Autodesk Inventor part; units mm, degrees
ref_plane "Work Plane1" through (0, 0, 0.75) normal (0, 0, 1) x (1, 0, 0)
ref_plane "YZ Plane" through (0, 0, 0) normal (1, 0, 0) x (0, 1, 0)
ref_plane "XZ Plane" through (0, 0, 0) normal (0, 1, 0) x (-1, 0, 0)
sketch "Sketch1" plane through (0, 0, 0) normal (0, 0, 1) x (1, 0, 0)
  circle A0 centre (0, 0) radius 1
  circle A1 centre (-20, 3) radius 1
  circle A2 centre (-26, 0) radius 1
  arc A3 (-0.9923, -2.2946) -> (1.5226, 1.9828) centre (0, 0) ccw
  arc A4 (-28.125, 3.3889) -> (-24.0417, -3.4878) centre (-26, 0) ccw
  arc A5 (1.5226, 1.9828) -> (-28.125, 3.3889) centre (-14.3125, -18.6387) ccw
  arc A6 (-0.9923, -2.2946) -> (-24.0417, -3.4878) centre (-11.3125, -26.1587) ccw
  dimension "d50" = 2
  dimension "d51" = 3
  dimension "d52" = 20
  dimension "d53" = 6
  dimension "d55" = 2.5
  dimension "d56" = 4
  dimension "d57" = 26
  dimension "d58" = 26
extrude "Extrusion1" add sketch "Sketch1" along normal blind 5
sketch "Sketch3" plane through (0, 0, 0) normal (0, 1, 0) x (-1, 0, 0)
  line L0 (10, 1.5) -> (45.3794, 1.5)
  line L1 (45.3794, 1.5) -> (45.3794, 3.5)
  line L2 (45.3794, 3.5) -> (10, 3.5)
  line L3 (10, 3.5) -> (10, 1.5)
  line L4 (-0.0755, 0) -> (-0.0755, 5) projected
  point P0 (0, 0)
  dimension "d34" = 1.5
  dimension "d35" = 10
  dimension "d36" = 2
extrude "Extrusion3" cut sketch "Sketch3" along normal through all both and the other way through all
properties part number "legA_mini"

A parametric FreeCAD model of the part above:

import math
import FreeCAD as App
import Part
import Sketcher
Q = App.Units.Quantity

doc = App.newDocument("Part")
body = doc.addObject("PartDesign::Body", "Body")

sketch1 = doc.addObject("Sketcher::SketchObject", "Sketch")
body.addObject(sketch1)
sketch1.AttachmentSupport = (doc.XY_Plane, [""])
sketch1.MapMode = "FlatFace"
sketch1.addGeometry([
    Part.ArcOfCircle(Part.Circle(App.Vector(-11.3, -26.2, 0), App.Vector(0, 0, 1), 26), math.radians(67), math.radians(119)),
    Part.ArcOfCircle(Part.Circle(App.Vector(0, 0, 0), App.Vector(0, 0, 1), 2.5), math.radians(-113), math.radians(52)),
    Part.ArcOfCircle(Part.Circle(App.Vector(-14.3, -18.6, 0), App.Vector(0, 0, 1), 26), math.radians(52), math.radians(122)),
    Part.ArcOfCircle(Part.Circle(App.Vector(-26, 0, 0), App.Vector(0, 0, 1), 4), math.radians(122), math.radians(299)),
    Part.Circle(App.Vector(-26, 0, 0), App.Vector(0, 0, 1), 1),
    Part.Circle(App.Vector(0, 0, 0), App.Vector(0, 0, 1), 1),
    Part.Circle(App.Vector(-20, 3, 0), App.Vector(0, 0, 1), 1),
], False)
sketch1.addConstraint([
    Sketcher.Constraint("Tangent", 0, 1, 1, 1),
    Sketcher.Constraint("Tangent", 1, 2, 2, 1),
    Sketcher.Constraint("Tangent", 2, 2, 3, 1),
    Sketcher.Constraint("Tangent", 3, 2, 0, 2),
    Sketcher.Constraint("Coincident", 1, 3, -1, 1),
    Sketcher.Constraint("Coincident", 5, 3, -1, 1),
    Sketcher.Constraint("Coincident", 4, 3, 3, 3),
    Sketcher.Constraint("Equal", 0, 2),
    Sketcher.Constraint("Equal", 4, 5),
    Sketcher.Constraint("Equal", 5, 6),
    Sketcher.Constraint("PointOnObject", 3, 3, -1),
    Sketcher.Constraint("Diameter", 4, Q("2 mm")),
    Sketcher.Constraint("Radius", 0, Q("26 mm")),
    Sketcher.Constraint("Radius", 3, Q("4 mm")),
    Sketcher.Constraint("Radius", 1, Q("2.5 mm")),
    Sketcher.Constraint("DistanceX", 3, 3, -1, 1, Q("26 mm")),
    Sketcher.Constraint("DistanceX", 6, 3, -1, 1, Q("20 mm")),
    Sketcher.Constraint("DistanceY", -1, 1, 6, 3, Q("3 mm")),
])
pad1 = doc.addObject("PartDesign::Pad", "Pad")
body.addObject(pad1)
pad1.Profile = sketch1
pad1.Length = 5

sketch2 = doc.addObject("Sketcher::SketchObject", "Sketch001")
body.addObject(sketch2)
sketch2.AttachmentSupport = (doc.XZ_Plane, [""])
sketch2.MapMode = "FlatFace"
sketch2.addGeometry([
    Part.LineSegment(App.Vector(-10, 3.5, 0), App.Vector(-10, 1.5, 0)),
    Part.LineSegment(App.Vector(-10, 1.5, 0), App.Vector(-45.4, 1.5, 0)),
    Part.LineSegment(App.Vector(-45.4, 1.5, 0), App.Vector(-45.4, 3.5, 0)),
    Part.LineSegment(App.Vector(-45.4, 3.5, 0), App.Vector(-10, 3.5, 0)),
], False)
sketch2.addConstraint([
    Sketcher.Constraint("Coincident", 0, 2, 1, 1),
    Sketcher.Constraint("Coincident", 1, 2, 2, 1),
    Sketcher.Constraint("Coincident", 2, 2, 3, 1),
    Sketcher.Constraint("Coincident", 3, 2, 0, 1),
    Sketcher.Constraint("Vertical", 0),
    Sketcher.Constraint("Horizontal", 1),
    Sketcher.Constraint("Vertical", 2),
    Sketcher.Constraint("Horizontal", 3),
    Sketcher.Constraint("DistanceY", 0, 2, 0, 1, Q("2 mm")),
    Sketcher.Constraint("DistanceX", 0, 2, -1, 1, Q("10 mm")),
    Sketcher.Constraint("DistanceY", -1, 1, 0, 2, Q("1.5 mm")),
    Sketcher.Constraint("DistanceX", 1, 2, 1, 1, Q("35.3794 mm")),
])
pocket1 = doc.addObject("PartDesign::Pocket", "Pocket")
body.addObject(pocket1)
pocket1.Profile = sketch2
pocket1.Type = "ThroughAll"
pocket1.Midplane = True

doc.recompute()
